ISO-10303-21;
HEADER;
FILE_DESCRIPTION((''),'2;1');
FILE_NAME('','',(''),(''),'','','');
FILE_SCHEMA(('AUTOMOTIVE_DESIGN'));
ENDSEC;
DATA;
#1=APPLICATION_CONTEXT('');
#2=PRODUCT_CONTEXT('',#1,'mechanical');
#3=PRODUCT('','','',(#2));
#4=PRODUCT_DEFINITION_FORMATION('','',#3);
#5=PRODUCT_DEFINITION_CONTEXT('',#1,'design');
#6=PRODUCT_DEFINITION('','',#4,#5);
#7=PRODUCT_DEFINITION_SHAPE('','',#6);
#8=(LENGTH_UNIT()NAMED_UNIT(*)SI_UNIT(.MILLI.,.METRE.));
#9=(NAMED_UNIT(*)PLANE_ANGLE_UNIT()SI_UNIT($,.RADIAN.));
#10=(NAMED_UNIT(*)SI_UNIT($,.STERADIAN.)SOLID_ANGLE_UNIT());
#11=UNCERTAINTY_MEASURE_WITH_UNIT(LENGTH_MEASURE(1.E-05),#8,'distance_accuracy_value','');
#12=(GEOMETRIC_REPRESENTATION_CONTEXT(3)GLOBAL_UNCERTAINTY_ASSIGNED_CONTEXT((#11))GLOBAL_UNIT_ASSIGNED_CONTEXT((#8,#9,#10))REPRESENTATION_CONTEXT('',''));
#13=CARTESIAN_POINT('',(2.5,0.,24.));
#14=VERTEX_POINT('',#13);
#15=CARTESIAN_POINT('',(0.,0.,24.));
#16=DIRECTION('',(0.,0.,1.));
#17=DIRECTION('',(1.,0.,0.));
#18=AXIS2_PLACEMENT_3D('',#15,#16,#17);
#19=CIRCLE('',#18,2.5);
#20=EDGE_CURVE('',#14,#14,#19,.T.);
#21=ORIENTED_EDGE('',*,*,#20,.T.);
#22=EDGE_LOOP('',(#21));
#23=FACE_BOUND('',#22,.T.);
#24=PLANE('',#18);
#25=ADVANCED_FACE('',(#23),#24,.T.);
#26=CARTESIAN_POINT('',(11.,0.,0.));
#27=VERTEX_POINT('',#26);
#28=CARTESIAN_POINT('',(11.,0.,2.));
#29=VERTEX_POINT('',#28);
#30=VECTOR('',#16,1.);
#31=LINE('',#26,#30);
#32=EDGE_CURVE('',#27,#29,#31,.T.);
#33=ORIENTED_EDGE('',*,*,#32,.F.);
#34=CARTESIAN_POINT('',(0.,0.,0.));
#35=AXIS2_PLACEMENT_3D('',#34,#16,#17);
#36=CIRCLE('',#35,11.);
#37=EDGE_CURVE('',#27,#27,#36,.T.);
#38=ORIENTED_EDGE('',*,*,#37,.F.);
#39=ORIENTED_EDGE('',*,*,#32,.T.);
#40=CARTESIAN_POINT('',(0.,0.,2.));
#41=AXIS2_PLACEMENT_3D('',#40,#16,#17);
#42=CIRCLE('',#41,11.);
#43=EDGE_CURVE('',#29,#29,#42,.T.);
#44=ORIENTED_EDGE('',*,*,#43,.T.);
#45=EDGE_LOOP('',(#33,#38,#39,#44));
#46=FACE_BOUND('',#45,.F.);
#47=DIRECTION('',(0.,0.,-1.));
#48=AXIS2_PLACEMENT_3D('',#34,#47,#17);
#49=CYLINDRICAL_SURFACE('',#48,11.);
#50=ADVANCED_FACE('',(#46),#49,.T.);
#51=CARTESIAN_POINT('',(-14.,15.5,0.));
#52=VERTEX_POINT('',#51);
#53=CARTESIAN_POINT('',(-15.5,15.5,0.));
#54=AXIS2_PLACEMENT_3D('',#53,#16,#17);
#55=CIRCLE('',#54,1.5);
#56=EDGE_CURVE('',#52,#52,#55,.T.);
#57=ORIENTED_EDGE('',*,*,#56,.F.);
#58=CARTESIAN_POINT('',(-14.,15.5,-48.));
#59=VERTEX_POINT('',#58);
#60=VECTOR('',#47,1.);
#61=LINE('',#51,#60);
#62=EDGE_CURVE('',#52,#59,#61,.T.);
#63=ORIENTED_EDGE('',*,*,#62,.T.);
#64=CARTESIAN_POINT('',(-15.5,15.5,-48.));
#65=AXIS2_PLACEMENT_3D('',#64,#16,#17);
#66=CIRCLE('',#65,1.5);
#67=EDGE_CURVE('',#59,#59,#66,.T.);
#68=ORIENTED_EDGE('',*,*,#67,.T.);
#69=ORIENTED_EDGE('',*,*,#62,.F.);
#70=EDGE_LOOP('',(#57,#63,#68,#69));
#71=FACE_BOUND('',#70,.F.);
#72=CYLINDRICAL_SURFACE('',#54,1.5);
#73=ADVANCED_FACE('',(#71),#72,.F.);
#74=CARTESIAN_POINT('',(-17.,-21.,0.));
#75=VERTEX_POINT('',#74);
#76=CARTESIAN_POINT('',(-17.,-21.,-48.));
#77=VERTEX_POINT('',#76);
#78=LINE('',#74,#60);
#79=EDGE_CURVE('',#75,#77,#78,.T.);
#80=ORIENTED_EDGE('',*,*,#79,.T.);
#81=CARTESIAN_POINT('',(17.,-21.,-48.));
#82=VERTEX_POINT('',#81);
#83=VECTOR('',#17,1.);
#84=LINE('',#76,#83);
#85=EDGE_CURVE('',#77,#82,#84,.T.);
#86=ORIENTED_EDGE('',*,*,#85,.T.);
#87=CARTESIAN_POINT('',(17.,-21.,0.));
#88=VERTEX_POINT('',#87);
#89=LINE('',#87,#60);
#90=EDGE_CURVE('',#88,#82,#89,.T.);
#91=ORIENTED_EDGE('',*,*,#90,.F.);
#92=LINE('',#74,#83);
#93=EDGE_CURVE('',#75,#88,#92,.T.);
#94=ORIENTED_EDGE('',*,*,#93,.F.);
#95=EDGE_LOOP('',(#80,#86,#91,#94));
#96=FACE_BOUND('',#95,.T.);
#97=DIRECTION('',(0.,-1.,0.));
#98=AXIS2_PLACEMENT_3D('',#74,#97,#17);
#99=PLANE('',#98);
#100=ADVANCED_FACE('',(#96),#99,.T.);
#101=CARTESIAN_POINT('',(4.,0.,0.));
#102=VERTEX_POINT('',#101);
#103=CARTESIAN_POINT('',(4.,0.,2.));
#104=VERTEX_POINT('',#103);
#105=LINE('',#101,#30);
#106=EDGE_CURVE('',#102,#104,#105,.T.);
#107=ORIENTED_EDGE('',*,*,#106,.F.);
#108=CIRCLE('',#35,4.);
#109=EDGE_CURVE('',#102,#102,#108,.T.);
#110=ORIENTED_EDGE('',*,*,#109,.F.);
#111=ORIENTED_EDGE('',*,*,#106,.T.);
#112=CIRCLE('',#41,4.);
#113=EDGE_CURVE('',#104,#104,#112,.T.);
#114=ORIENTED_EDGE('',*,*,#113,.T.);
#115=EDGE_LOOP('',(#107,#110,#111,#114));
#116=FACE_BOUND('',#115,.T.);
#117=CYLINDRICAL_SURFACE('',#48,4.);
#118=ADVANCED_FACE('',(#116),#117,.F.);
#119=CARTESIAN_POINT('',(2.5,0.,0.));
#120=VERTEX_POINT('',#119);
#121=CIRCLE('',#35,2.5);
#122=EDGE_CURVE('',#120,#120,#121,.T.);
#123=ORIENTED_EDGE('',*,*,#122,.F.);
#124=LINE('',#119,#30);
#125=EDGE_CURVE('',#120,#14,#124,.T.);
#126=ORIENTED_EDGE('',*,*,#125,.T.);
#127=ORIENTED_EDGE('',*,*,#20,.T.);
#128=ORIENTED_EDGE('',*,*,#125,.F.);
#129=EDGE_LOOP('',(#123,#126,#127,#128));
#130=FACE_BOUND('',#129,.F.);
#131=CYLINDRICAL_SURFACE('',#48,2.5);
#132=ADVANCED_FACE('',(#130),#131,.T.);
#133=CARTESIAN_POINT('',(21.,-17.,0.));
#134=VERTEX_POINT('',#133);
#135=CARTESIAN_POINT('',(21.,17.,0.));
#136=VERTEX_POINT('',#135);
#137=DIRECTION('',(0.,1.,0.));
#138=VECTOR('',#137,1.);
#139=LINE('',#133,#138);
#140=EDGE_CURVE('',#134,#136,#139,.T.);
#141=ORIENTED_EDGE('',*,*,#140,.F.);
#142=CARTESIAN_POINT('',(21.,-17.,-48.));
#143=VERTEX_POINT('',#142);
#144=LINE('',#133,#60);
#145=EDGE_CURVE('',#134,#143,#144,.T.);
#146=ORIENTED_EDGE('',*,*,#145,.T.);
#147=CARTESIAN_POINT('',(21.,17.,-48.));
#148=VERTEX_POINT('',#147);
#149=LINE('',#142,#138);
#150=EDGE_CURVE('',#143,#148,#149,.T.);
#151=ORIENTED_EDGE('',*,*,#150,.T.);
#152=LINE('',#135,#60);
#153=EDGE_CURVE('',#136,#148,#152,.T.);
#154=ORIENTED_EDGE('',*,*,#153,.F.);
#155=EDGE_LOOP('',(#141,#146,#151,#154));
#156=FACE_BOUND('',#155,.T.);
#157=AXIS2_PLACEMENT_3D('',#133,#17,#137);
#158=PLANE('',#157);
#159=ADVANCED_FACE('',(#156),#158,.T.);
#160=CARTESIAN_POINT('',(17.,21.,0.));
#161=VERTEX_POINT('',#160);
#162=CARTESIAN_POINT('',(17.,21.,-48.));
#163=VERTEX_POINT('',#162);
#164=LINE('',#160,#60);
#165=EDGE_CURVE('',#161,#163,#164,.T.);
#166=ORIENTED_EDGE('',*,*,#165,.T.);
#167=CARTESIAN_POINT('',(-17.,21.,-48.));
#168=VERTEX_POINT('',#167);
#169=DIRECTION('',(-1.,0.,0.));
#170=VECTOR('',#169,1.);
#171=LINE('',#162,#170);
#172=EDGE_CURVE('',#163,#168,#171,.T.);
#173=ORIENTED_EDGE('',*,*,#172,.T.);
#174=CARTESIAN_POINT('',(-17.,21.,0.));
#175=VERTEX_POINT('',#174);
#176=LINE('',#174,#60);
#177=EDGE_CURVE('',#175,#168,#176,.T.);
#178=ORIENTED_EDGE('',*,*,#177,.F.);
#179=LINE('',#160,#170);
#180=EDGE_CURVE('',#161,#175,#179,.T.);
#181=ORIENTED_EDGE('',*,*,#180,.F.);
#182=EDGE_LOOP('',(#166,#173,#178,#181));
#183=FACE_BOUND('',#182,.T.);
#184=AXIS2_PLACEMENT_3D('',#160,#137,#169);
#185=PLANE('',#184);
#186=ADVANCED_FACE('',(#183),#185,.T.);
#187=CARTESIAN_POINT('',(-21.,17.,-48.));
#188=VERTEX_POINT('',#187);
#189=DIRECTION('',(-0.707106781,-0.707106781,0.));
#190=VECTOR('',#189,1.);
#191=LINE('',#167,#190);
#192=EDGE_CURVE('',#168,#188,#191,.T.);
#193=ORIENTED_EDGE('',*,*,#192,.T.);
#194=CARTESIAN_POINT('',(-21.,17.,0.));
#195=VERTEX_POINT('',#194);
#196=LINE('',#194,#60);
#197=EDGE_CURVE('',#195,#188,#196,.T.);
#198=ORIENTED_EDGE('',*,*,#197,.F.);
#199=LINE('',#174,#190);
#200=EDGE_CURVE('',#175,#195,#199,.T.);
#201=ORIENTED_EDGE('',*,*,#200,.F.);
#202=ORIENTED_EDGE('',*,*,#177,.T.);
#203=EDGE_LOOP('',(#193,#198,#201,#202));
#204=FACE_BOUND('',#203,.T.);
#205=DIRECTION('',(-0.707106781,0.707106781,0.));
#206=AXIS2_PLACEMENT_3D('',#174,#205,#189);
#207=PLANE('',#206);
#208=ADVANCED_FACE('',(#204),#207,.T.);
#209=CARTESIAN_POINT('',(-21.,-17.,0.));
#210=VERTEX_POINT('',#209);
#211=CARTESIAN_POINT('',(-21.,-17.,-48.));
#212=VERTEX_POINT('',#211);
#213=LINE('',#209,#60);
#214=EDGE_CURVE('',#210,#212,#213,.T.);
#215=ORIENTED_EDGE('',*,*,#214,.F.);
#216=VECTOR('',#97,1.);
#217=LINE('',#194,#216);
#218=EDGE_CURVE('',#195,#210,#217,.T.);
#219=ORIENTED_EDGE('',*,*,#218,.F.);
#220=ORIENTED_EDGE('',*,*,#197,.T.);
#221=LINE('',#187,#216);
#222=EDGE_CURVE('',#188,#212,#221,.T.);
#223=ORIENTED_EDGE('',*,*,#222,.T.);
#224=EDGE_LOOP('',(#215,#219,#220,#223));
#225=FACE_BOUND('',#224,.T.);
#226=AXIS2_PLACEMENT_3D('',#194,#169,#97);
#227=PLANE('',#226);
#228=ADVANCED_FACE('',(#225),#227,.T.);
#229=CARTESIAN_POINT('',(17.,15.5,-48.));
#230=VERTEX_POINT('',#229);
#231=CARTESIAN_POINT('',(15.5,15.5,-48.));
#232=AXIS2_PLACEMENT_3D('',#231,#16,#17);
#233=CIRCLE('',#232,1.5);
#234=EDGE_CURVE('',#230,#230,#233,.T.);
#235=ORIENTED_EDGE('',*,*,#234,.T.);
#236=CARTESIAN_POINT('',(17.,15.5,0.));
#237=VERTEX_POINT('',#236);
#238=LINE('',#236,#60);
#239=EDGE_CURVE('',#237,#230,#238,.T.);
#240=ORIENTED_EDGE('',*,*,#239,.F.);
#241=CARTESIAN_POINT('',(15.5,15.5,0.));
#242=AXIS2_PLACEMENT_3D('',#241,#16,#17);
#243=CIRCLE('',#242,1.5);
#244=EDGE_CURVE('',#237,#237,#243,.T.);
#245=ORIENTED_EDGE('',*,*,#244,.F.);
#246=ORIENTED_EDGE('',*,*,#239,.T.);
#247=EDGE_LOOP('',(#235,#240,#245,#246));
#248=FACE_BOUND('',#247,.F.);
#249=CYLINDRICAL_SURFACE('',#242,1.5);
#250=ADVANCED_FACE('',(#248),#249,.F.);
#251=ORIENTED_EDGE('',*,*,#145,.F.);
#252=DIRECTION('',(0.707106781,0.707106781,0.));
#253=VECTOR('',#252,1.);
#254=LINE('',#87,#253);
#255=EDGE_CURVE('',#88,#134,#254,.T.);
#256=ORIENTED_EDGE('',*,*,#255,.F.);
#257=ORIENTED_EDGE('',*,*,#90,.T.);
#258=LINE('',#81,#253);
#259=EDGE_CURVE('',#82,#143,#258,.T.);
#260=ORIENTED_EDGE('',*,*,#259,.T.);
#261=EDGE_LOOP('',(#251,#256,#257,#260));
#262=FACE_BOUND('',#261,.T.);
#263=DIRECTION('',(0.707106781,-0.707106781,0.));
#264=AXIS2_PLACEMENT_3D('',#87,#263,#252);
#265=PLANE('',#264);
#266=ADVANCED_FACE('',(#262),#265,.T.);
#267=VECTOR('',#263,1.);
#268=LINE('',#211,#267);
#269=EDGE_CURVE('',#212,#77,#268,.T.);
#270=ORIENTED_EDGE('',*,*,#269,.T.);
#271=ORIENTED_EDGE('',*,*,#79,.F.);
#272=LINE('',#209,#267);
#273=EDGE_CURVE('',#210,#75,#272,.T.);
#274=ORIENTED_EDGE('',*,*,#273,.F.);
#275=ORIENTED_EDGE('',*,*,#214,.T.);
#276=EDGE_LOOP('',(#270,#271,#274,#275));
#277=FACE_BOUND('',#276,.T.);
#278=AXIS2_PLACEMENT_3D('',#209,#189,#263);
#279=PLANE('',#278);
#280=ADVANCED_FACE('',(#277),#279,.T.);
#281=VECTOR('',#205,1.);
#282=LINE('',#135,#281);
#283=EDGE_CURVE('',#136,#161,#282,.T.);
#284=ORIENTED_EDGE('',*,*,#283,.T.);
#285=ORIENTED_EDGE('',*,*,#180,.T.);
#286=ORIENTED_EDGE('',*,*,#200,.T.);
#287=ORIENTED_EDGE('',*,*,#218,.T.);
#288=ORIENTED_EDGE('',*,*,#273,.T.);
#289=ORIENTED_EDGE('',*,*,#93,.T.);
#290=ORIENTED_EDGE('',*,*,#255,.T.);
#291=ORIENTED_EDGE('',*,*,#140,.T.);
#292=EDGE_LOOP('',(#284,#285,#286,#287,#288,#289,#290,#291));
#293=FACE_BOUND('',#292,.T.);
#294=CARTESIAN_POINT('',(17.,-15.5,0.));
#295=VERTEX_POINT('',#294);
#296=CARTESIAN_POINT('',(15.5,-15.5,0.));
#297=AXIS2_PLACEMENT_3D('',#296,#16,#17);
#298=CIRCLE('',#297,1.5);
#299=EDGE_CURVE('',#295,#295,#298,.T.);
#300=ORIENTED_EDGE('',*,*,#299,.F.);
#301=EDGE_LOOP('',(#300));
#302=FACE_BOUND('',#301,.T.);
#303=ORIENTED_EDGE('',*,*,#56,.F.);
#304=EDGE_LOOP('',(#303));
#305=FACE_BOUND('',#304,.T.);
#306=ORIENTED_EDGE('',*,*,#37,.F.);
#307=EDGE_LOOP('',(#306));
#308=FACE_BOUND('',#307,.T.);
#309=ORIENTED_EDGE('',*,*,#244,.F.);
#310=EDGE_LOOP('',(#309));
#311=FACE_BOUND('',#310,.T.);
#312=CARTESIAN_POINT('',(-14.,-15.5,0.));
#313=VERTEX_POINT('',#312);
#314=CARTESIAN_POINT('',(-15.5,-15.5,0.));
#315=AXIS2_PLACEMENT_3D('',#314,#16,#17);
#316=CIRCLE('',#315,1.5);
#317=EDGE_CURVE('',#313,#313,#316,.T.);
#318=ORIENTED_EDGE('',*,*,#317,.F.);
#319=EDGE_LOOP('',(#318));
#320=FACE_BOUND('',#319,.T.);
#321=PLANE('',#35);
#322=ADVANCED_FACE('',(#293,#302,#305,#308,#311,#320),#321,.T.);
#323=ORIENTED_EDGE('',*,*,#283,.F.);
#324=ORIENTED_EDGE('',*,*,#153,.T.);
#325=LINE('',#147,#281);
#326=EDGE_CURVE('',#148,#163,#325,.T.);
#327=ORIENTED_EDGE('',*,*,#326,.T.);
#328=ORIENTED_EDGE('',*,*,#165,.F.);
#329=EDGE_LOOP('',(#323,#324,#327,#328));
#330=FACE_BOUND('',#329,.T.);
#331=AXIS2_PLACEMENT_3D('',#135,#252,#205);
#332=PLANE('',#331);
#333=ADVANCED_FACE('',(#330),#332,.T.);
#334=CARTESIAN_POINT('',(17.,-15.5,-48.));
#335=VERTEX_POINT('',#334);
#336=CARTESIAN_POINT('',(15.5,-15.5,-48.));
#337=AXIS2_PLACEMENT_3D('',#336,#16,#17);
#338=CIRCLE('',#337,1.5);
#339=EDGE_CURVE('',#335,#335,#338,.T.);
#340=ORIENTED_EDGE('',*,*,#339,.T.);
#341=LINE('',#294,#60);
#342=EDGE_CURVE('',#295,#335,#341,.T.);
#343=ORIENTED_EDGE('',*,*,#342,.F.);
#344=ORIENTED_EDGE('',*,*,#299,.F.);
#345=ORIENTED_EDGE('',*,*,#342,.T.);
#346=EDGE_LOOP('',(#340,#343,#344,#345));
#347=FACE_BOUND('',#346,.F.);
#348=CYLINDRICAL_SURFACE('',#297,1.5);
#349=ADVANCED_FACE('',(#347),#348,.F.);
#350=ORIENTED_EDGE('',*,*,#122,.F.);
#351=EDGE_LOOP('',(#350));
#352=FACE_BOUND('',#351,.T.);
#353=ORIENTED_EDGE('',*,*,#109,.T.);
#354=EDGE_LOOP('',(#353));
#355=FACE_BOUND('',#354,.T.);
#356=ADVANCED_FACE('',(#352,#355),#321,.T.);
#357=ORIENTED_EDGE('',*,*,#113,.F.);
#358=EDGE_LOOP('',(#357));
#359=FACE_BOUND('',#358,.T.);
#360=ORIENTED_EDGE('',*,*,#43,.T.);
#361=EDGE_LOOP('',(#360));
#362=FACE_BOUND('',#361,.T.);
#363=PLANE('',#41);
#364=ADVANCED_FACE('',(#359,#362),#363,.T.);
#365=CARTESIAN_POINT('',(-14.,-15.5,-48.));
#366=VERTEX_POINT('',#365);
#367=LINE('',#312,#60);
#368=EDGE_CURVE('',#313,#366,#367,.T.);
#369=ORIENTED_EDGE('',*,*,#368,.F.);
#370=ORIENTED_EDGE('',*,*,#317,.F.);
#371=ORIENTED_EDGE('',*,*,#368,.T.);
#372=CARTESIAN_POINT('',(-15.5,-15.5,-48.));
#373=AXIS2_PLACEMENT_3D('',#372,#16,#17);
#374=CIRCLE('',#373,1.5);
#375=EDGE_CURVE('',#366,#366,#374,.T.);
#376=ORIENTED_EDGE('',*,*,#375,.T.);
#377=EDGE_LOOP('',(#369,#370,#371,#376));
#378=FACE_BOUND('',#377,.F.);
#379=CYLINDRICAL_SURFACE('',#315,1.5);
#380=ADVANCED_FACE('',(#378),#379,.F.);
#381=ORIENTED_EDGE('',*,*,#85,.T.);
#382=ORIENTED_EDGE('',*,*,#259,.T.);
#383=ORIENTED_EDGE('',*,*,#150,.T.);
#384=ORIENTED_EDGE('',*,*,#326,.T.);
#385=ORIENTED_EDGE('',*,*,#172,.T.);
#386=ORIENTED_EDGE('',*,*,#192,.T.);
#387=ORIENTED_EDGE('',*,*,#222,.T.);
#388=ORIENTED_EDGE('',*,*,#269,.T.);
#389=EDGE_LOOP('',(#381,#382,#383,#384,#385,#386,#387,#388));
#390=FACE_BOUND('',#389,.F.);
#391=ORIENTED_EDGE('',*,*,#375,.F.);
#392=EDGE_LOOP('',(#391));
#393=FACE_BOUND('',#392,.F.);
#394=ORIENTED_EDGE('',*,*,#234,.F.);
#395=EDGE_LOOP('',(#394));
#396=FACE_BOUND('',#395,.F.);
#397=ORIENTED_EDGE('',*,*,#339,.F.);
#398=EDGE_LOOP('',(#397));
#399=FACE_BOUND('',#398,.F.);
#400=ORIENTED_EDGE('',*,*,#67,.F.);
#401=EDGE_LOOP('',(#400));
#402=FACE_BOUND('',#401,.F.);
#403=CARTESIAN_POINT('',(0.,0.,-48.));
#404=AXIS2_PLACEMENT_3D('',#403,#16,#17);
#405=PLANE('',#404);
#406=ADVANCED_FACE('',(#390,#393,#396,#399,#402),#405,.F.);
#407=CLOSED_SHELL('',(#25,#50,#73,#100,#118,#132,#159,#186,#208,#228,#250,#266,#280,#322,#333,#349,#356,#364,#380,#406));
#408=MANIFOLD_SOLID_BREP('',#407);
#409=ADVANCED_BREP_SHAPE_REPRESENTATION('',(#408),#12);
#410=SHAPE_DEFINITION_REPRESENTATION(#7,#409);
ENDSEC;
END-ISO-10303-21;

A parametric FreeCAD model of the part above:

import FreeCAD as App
import Part
import Sketcher

doc = App.newDocument("Part")
params = doc.addObject("Spreadsheet::Sheet", "Params")
for row, (alias, value) in enumerate([
    ("sketch1_diameter", "3 mm"),
    ("sketch1_width", "34 mm"),
    ("pad1_length", "48 mm"),
    ("sketch2_diameter", "22 mm"),
    ("sketch2_diameter2", "8 mm"),
    ("pad2_length", "2 mm"),
    ("sketch3_diameter", "5 mm"),
    ("pad3_length", "24 mm"),
], start=1):
    params.set(f"A{row}", alias)
    params.set(f"B{row}", "=" + value)
    params.setAlias(f"B{row}", alias)

body = doc.addObject("PartDesign::Body", "Body")

# Sketch on XY plane
sketch1 = body.newObject("Sketcher::SketchObject", "Sketch")
sketch1.AttachmentSupport = (doc.getObject("XY_Plane"), [""])
sketch1.MapMode = "FlatFace"
sketch1.addGeometry(Part.LineSegment(App.Vector(-21, 17, 0), App.Vector(-21, -17, 0)), False)
sketch1.addGeometry(Part.LineSegment(App.Vector(-21, -17, 0), App.Vector(-17, -21, 0)), False)
sketch1.addGeometry(Part.LineSegment(App.Vector(-17, -21, 0), App.Vector(17, -21, 0)), False)
sketch1.addGeometry(Part.LineSegment(App.Vector(17, -21, 0), App.Vector(21, -17, 0)), False)
sketch1.addGeometry(Part.LineSegment(App.Vector(21, -17, 0), App.Vector(21, 17, 0)), False)
sketch1.addGeometry(Part.LineSegment(App.Vector(21, 17, 0), App.Vector(17, 21, 0)), False)
sketch1.addGeometry(Part.LineSegment(App.Vector(17, 21, 0), App.Vector(-17, 21, 0)), False)
sketch1.addGeometry(Part.LineSegment(App.Vector(-17, 21, 0), App.Vector(-21, 17, 0)), False)
sketch1.addGeometry(Part.Circle(App.Vector(-15.5, -15.5, 0), App.Vector(0, 0, 1), 1.5), False)
sketch1.addGeometry(Part.Circle(App.Vector(15.5, -15.5, 0), App.Vector(0, 0, 1), 1.5), False)
sketch1.addGeometry(Part.Circle(App.Vector(-15.5, 15.5, 0), App.Vector(0, 0, 1), 1.5), False)
sketch1.addGeometry(Part.Circle(App.Vector(15.5, 15.5, 0), App.Vector(0, 0, 1), 1.5), False)
sketch1.addConstraint(Sketcher.Constraint("Coincident", 0, 2, 1, 1))
sketch1.addConstraint(Sketcher.Constraint("Coincident", 1, 2, 2, 1))
sketch1.addConstraint(Sketcher.Constraint("Coincident", 2, 2, 3, 1))
sketch1.addConstraint(Sketcher.Constraint("Coincident", 3, 2, 4, 1))
sketch1.addConstraint(Sketcher.Constraint("Coincident", 4, 2, 5, 1))
sketch1.addConstraint(Sketcher.Constraint("Coincident", 5, 2, 6, 1))
sketch1.addConstraint(Sketcher.Constraint("Coincident", 6, 2, 7, 1))
sketch1.addConstraint(Sketcher.Constraint("Coincident", 7, 2, 0, 1))
sketch1.addConstraint(Sketcher.Constraint("Vertical", 0))
sketch1.addConstraint(Sketcher.Constraint("Horizontal", 2))
sketch1.addConstraint(Sketcher.Constraint("Vertical", 4))
sketch1.addConstraint(Sketcher.Constraint("Horizontal", 6))
sketch1.addConstraint(Sketcher.Constraint("Equal", 8, 9))
sketch1.addConstraint(Sketcher.Constraint("Equal", 9, 10))
sketch1.addConstraint(Sketcher.Constraint("Equal", 10, 11))
sketch1.addConstraint(Sketcher.Constraint("Symmetric", 9, 3, 10, 3, -1, 1))
sketch1.addConstraint(Sketcher.Constraint("Symmetric", 8, 3, 11, 3, -1, 1))
sketch1.addConstraint(Sketcher.Constraint("Symmetric", 0, 2, 4, 2, -1, 1))
sketch1.addConstraint(Sketcher.Constraint("Symmetric", 1, 2, 5, 2, -1, 1))
sketch1.addConstraint(Sketcher.Constraint("Symmetric", 8, 3, 9, 3, -2))
sketch1.addConstraint(Sketcher.Constraint("Perpendicular", 1, 3))
sketch1.addConstraint(Sketcher.Constraint("Perpendicular", 5, 7))
sketch1.addConstraint(Sketcher.Constraint("Horizontal", 0, 2, 3, 2))
sketch1.addConstraint(Sketcher.Constraint("Horizontal", 4, 2, 7, 2))
sketch1.addConstraint(Sketcher.Constraint("Vertical", 2, 2, 5, 2))
sketch1.addConstraint(Sketcher.Constraint("Equal", 6, 0))
sketch1.addConstraint(Sketcher.Constraint("Diameter", 8, 3.0))
sketch1.addConstraint(Sketcher.Constraint("DistanceX", 2, 1, 2, 2, 34.0))
sketch1.addConstraint(Sketcher.Constraint("DistanceX", 0, 2, -1, 1, 21.0))
sketch1.addConstraint(Sketcher.Constraint("DistanceX", 8, 3, 9, 3, 31.0))
sketch1.addConstraint(Sketcher.Constraint("DistanceY", 8, 3, 10, 3, 31.0))
sketch1.setExpression("Constraints[26]", "Params.sketch1_diameter")
sketch1.setExpression("Constraints[27]", "Params.sketch1_width")
pad1 = body.newObject("PartDesign::Pad", "Pad")
pad1.Profile = sketch1
pad1.setExpression("Length", "Params.pad1_length")
pad1.Reversed = True

# Sketch on XY plane
sketch2 = body.newObject("Sketcher::SketchObject", "Sketch001")
sketch2.AttachmentSupport = (doc.getObject("XY_Plane"), [""])
sketch2.MapMode = "FlatFace"
sketch2.addGeometry(Part.Circle(App.Vector(0, 0, 0), App.Vector(0, 0, 1), 11), False)
sketch2.addGeometry(Part.Circle(App.Vector(0, 0, 0), App.Vector(0, 0, 1), 4), False)
sketch2.addConstraint(Sketcher.Constraint("Coincident", 0, 3, -1, 1))
sketch2.addConstraint(Sketcher.Constraint("Coincident", 1, 3, -1, 1))
sketch2.addConstraint(Sketcher.Constraint("Diameter", 0, 22.0))
sketch2.addConstraint(Sketcher.Constraint("Diameter", 1, 8.0))
sketch2.setExpression("Constraints[2]", "Params.sketch2_diameter")
sketch2.setExpression("Constraints[3]", "Params.sketch2_diameter2")
pad2 = body.newObject("PartDesign::Pad", "Pad001")
pad2.Profile = sketch2
pad2.setExpression("Length", "Params.pad2_length")

# Sketch on XY plane
sketch3 = body.newObject("Sketcher::SketchObject", "Sketch002")
sketch3.AttachmentSupport = (doc.getObject("XY_Plane"), [""])
sketch3.MapMode = "FlatFace"
sketch3.addGeometry(Part.Circle(App.Vector(0, 0, 0), App.Vector(0, 0, 1), 2.5), False)
sketch3.addConstraint(Sketcher.Constraint("Coincident", 0, 3, -1, 1))
sketch3.addConstraint(Sketcher.Constraint("Diameter", 0, 5.0))
sketch3.setExpression("Constraints[1]", "Params.sketch3_diameter")
pad3 = body.newObject("PartDesign::Pad", "Pad002")
pad3.Profile = sketch3
pad3.setExpression("Length", "Params.pad3_length")

doc.recompute()
